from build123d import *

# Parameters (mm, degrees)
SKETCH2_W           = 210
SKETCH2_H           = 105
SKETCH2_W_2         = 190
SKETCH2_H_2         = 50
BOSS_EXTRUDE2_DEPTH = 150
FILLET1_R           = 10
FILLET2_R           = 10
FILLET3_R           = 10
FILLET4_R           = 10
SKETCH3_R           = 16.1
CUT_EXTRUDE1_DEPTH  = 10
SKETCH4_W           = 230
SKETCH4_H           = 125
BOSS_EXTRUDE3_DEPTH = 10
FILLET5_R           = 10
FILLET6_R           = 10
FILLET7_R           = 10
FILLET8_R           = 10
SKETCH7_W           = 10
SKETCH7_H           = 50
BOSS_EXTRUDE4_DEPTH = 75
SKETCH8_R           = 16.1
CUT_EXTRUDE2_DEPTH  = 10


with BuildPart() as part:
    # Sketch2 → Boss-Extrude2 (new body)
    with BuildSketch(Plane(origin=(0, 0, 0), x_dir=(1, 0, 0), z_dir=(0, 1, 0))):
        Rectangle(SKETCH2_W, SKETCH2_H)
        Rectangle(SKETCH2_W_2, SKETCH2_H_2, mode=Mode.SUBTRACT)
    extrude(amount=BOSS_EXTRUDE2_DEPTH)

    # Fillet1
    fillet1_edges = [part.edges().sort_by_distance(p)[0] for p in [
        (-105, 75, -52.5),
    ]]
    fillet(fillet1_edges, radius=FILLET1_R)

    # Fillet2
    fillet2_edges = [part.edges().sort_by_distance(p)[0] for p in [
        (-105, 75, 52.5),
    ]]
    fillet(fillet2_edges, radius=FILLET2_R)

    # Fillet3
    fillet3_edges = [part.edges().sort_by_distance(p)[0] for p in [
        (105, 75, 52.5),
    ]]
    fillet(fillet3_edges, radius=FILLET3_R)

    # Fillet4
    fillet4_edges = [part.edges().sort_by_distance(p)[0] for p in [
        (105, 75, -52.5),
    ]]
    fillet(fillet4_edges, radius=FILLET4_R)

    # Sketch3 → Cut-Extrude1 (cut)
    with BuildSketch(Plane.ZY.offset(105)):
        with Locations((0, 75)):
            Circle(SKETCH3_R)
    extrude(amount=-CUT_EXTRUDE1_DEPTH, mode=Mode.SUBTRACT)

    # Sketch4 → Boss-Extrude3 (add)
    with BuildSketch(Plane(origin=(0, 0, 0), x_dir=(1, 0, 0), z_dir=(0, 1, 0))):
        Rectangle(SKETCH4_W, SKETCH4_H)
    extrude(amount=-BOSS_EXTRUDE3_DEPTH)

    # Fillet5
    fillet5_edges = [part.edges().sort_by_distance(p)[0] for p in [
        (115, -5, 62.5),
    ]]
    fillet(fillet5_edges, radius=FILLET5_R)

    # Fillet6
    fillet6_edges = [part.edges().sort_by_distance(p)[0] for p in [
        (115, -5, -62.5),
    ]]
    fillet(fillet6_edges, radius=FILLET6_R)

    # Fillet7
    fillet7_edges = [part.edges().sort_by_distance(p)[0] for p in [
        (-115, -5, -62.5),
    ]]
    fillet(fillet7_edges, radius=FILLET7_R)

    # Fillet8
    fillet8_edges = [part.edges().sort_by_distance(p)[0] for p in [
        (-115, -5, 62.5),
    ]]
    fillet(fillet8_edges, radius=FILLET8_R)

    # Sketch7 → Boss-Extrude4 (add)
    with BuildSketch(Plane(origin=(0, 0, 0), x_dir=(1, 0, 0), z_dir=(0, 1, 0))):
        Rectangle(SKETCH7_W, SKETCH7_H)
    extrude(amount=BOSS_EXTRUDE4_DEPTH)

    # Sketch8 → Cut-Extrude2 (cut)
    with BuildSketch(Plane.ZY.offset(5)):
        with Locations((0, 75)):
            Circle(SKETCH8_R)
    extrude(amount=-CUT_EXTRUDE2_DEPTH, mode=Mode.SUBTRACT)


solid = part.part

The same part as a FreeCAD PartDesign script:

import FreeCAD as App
import Part
import Sketcher
from FreeCAD import Vector
Q = App.Units.Quantity


def edges_at(feature, points):
    """Names of the edges that pass closest to the given points."""
    edges = feature.Shape.Edges
    near = lambda p: min(range(len(edges)), key=lambda i: edges[i].distToShape(Part.Vertex(*p))[0])
    return sorted({f"Edge{near(p) + 1}" for p in points})

doc = App.newDocument("Part")
body = doc.addObject("PartDesign::Body", "Body")

# Sketch on XZ plane
sketch1 = doc.addObject("Sketcher::SketchObject", "Sketch")
body.addObject(sketch1)
sketch1.AttachmentSupport = (doc.XZ_Plane, [""])
sketch1.MapMode = "FlatFace"
sketch1.addGeometry([
    Part.LineSegment(Vector(-105, -52.5, 0), Vector(-105, 52.5, 0)),  # 0
    Part.LineSegment(Vector(-105, 52.5, 0), Vector(105, 52.5, 0)),  # 1
    Part.LineSegment(Vector(105, 52.5, 0), Vector(105, -52.5, 0)),  # 2
    Part.LineSegment(Vector(105, -52.5, 0), Vector(-105, -52.5, 0)),  # 3
    Part.LineSegment(Vector(95, 25, 0), Vector(-95, 25, 0)),  # 4
    Part.LineSegment(Vector(-95, 25, 0), Vector(-95, -25, 0)),  # 5
    Part.LineSegment(Vector(-95, -25, 0), Vector(95, -25, 0)),  # 6
    Part.LineSegment(Vector(95, -25, 0), Vector(95, 25, 0)),  # 7
], False)
sketch1.addConstraint([
    Sketcher.Constraint("Coincident", 0, 2, 1, 1),
    Sketcher.Constraint("Coincident", 1, 2, 2, 1),
    Sketcher.Constraint("Coincident", 2, 2, 3, 1),
    Sketcher.Constraint("Coincident", 3, 2, 0, 1),
    Sketcher.Constraint("Coincident", 4, 2, 5, 1),
    Sketcher.Constraint("Coincident", 5, 2, 6, 1),
    Sketcher.Constraint("Coincident", 6, 2, 7, 1),
    Sketcher.Constraint("Coincident", 7, 2, 4, 1),
    Sketcher.Constraint("Vertical", 0),
    Sketcher.Constraint("Horizontal", 1),
    Sketcher.Constraint("Vertical", 2),
    Sketcher.Constraint("Horizontal", 3),
    Sketcher.Constraint("Horizontal", 4),
    Sketcher.Constraint("Vertical", 5),
    Sketcher.Constraint("Horizontal", 6),
    Sketcher.Constraint("Vertical", 7),
    Sketcher.Constraint("Symmetric", 0, 2, 2, 2, -1, 1),
    Sketcher.Constraint("Symmetric", 4, 2, 6, 2, -1, 1),
    Sketcher.Constraint("DistanceX", 1, 1, 1, 2, Q("210 mm")),
    Sketcher.Constraint("DistanceX", 4, 2, 4, 1, Q("190 mm")),
    Sketcher.Constraint("DistanceY", 0, 1, 0, 2, Q("105 mm")),
    Sketcher.Constraint("DistanceY", 5, 2, 5, 1, Q("50 mm")),
])
pad1 = doc.addObject("PartDesign::Pad", "Pad")
body.addObject(pad1)
pad1.Profile = sketch1
pad1.Length = 150
pad1.Reversed = True
doc.recompute()

fillet = doc.addObject("PartDesign::Fillet", "Fillet")
body.addObject(fillet)
fillet.Base = (pad1, edges_at(pad1, [(-105, 75, -52.5)]))
fillet.Radius = 10
doc.recompute()

fillet2 = doc.addObject("PartDesign::Fillet", "Fillet001")
body.addObject(fillet2)
fillet2.Base = (fillet, edges_at(fillet, [(-105, 75, 52.5)]))
fillet2.Radius = 10
doc.recompute()

fillet3 = doc.addObject("PartDesign::Fillet", "Fillet002")
body.addObject(fillet3)
fillet3.Base = (fillet2, edges_at(fillet2, [(105, 75, 52.5)]))
fillet3.Radius = 10
doc.recompute()

fillet4 = doc.addObject("PartDesign::Fillet", "Fillet003")
body.addObject(fillet4)
fillet4.Base = (fillet3, edges_at(fillet3, [(105, 75, -52.5)]))
fillet4.Radius = 10

# Sketch on YZ plane
sketch2 = doc.addObject("Sketcher::SketchObject", "Sketch001")
body.addObject(sketch2)
sketch2.AttachmentSupport = (doc.YZ_Plane, [""])
sketch2.MapMode = "FlatFace"
sketch2.AttachmentOffset = App.Placement(Vector(0, 0, -105), App.Rotation())
sketch2.addGeometry(Part.Circle(Vector(75, 0, 0), Vector(0, 0, 1), 16.1), False)
sketch2.addConstraint([
    Sketcher.Constraint("PointOnObject", 0, 3, -1),
    Sketcher.Constraint("Diameter", 0, Q("32.2 mm")),
    Sketcher.Constraint("DistanceX", -1, 1, 0, 3, Q("75 mm")),
])
pocket1 = doc.addObject("PartDesign::Pocket", "Pocket")
body.addObject(pocket1)
pocket1.Profile = sketch2
pocket1.Length = 10
pocket1.Reversed = True

# Sketch on XZ plane
sketch3 = doc.addObject("Sketcher::SketchObject", "Sketch002")
body.addObject(sketch3)
sketch3.AttachmentSupport = (doc.XZ_Plane, [""])
sketch3.MapMode = "FlatFace"
sketch3.addGeometry([
    Part.LineSegment(Vector(-115, -62.5, 0), Vector(-115, 62.5, 0)),
    Part.LineSegment(Vector(-115, 62.5, 0), Vector(115, 62.5, 0)),
    Part.LineSegment(Vector(115, 62.5, 0), Vector(115, -62.5, 0)),
    Part.LineSegment(Vector(115, -62.5, 0), Vector(-115, -62.5, 0)),
], False)
sketch3.addConstraint([
    Sketcher.Constraint("Coincident", 0, 2, 1, 1),
    Sketcher.Constraint("Coincident", 1, 2, 2, 1),
    Sketcher.Constraint("Coincident", 2, 2, 3, 1),
    Sketcher.Constraint("Coincident", 3, 2, 0, 1),
    Sketcher.Constraint("Vertical", 0),
    Sketcher.Constraint("Horizontal", 1),
    Sketcher.Constraint("Vertical", 2),
    Sketcher.Constraint("Horizontal", 3),
    Sketcher.Constraint("Symmetric", 0, 2, 2, 2, -1, 1),
    Sketcher.Constraint("DistanceX", 1, 1, 1, 2, Q("230 mm")),
    Sketcher.Constraint("DistanceY", 0, 1, 0, 2, Q("125 mm")),
])
pad2 = doc.addObject("PartDesign::Pad", "Pad001")
body.addObject(pad2)
pad2.Profile = sketch3
pad2.Length = 10
doc.recompute()

fillet5 = doc.addObject("PartDesign::Fillet", "Fillet004")
body.addObject(fillet5)
fillet5.Base = (pad2, edges_at(pad2, [(115, -5, 62.5)]))
fillet5.Radius = 10
doc.recompute()

fillet6 = doc.addObject("PartDesign::Fillet", "Fillet005")
body.addObject(fillet6)
fillet6.Base = (fillet5, edges_at(fillet5, [(115, -5, -62.5)]))
fillet6.Radius = 10
doc.recompute()

fillet7 = doc.addObject("PartDesign::Fillet", "Fillet006")
body.addObject(fillet7)
fillet7.Base = (fillet6, edges_at(fillet6, [(-115, -5, -62.5)]))
fillet7.Radius = 10
doc.recompute()

fillet8 = doc.addObject("PartDesign::Fillet", "Fillet007")
body.addObject(fillet8)
fillet8.Base = (fillet7, edges_at(fillet7, [(-115, -5, 62.5)]))
fillet8.Radius = 10

# Sketch on XZ plane
sketch4 = doc.addObject("Sketcher::SketchObject", "Sketch003")
body.addObject(sketch4)
sketch4.AttachmentSupport = (doc.XZ_Plane, [""])
sketch4.MapMode = "FlatFace"
sketch4.addGeometry([
    Part.LineSegment(Vector(-5, -25, 0), Vector(-5, 25, 0)),
    Part.LineSegment(Vector(-5, 25, 0), Vector(5, 25, 0)),
    Part.LineSegment(Vector(5, 25, 0), Vector(5, -25, 0)),
    Part.LineSegment(Vector(5, -25, 0), Vector(-5, -25, 0)),
], False)
sketch4.addConstraint([
    Sketcher.Constraint("Coincident", 0, 2, 1, 1),
    Sketcher.Constraint("Coincident", 1, 2, 2, 1),
    Sketcher.Constraint("Coincident", 2, 2, 3, 1),
    Sketcher.Constraint("Coincident", 3, 2, 0, 1),
    Sketcher.Constraint("Vertical", 0),
    Sketcher.Constraint("Horizontal", 1),
    Sketcher.Constraint("Vertical", 2),
    Sketcher.Constraint("Horizontal", 3),
    Sketcher.Constraint("Symmetric", 0, 2, 2, 2, -1, 1),
    Sketcher.Constraint("DistanceX", 1, 1, 1, 2, Q("10 mm")),
    Sketcher.Constraint("DistanceY", 0, 1, 0, 2, Q("50 mm")),
])
pad3 = doc.addObject("PartDesign::Pad", "Pad002")
body.addObject(pad3)
pad3.Profile = sketch4
pad3.Length = 75
pad3.Reversed = True

# Sketch on YZ plane
sketch5 = doc.addObject("Sketcher::SketchObject", "Sketch004")
body.addObject(sketch5)
sketch5.AttachmentSupport = (doc.YZ_Plane, [""])
sketch5.MapMode = "FlatFace"
sketch5.AttachmentOffset = App.Placement(Vector(0, 0, -5), App.Rotation())
sketch5.addGeometry(Part.Circle(Vector(75, 0, 0), Vector(0, 0, 1), 16.1), False)
sketch5.addConstraint([
    Sketcher.Constraint("PointOnObject", 0, 3, -1),
    Sketcher.Constraint("Diameter", 0, Q("32.2 mm")),
    Sketcher.Constraint("DistanceX", -1, 1, 0, 3, Q("75 mm")),
])
pocket2 = doc.addObject("PartDesign::Pocket", "Pocket001")
body.addObject(pocket2)
pocket2.Profile = sketch5
pocket2.Length = 10
pocket2.Reversed = True

doc.recompute()
